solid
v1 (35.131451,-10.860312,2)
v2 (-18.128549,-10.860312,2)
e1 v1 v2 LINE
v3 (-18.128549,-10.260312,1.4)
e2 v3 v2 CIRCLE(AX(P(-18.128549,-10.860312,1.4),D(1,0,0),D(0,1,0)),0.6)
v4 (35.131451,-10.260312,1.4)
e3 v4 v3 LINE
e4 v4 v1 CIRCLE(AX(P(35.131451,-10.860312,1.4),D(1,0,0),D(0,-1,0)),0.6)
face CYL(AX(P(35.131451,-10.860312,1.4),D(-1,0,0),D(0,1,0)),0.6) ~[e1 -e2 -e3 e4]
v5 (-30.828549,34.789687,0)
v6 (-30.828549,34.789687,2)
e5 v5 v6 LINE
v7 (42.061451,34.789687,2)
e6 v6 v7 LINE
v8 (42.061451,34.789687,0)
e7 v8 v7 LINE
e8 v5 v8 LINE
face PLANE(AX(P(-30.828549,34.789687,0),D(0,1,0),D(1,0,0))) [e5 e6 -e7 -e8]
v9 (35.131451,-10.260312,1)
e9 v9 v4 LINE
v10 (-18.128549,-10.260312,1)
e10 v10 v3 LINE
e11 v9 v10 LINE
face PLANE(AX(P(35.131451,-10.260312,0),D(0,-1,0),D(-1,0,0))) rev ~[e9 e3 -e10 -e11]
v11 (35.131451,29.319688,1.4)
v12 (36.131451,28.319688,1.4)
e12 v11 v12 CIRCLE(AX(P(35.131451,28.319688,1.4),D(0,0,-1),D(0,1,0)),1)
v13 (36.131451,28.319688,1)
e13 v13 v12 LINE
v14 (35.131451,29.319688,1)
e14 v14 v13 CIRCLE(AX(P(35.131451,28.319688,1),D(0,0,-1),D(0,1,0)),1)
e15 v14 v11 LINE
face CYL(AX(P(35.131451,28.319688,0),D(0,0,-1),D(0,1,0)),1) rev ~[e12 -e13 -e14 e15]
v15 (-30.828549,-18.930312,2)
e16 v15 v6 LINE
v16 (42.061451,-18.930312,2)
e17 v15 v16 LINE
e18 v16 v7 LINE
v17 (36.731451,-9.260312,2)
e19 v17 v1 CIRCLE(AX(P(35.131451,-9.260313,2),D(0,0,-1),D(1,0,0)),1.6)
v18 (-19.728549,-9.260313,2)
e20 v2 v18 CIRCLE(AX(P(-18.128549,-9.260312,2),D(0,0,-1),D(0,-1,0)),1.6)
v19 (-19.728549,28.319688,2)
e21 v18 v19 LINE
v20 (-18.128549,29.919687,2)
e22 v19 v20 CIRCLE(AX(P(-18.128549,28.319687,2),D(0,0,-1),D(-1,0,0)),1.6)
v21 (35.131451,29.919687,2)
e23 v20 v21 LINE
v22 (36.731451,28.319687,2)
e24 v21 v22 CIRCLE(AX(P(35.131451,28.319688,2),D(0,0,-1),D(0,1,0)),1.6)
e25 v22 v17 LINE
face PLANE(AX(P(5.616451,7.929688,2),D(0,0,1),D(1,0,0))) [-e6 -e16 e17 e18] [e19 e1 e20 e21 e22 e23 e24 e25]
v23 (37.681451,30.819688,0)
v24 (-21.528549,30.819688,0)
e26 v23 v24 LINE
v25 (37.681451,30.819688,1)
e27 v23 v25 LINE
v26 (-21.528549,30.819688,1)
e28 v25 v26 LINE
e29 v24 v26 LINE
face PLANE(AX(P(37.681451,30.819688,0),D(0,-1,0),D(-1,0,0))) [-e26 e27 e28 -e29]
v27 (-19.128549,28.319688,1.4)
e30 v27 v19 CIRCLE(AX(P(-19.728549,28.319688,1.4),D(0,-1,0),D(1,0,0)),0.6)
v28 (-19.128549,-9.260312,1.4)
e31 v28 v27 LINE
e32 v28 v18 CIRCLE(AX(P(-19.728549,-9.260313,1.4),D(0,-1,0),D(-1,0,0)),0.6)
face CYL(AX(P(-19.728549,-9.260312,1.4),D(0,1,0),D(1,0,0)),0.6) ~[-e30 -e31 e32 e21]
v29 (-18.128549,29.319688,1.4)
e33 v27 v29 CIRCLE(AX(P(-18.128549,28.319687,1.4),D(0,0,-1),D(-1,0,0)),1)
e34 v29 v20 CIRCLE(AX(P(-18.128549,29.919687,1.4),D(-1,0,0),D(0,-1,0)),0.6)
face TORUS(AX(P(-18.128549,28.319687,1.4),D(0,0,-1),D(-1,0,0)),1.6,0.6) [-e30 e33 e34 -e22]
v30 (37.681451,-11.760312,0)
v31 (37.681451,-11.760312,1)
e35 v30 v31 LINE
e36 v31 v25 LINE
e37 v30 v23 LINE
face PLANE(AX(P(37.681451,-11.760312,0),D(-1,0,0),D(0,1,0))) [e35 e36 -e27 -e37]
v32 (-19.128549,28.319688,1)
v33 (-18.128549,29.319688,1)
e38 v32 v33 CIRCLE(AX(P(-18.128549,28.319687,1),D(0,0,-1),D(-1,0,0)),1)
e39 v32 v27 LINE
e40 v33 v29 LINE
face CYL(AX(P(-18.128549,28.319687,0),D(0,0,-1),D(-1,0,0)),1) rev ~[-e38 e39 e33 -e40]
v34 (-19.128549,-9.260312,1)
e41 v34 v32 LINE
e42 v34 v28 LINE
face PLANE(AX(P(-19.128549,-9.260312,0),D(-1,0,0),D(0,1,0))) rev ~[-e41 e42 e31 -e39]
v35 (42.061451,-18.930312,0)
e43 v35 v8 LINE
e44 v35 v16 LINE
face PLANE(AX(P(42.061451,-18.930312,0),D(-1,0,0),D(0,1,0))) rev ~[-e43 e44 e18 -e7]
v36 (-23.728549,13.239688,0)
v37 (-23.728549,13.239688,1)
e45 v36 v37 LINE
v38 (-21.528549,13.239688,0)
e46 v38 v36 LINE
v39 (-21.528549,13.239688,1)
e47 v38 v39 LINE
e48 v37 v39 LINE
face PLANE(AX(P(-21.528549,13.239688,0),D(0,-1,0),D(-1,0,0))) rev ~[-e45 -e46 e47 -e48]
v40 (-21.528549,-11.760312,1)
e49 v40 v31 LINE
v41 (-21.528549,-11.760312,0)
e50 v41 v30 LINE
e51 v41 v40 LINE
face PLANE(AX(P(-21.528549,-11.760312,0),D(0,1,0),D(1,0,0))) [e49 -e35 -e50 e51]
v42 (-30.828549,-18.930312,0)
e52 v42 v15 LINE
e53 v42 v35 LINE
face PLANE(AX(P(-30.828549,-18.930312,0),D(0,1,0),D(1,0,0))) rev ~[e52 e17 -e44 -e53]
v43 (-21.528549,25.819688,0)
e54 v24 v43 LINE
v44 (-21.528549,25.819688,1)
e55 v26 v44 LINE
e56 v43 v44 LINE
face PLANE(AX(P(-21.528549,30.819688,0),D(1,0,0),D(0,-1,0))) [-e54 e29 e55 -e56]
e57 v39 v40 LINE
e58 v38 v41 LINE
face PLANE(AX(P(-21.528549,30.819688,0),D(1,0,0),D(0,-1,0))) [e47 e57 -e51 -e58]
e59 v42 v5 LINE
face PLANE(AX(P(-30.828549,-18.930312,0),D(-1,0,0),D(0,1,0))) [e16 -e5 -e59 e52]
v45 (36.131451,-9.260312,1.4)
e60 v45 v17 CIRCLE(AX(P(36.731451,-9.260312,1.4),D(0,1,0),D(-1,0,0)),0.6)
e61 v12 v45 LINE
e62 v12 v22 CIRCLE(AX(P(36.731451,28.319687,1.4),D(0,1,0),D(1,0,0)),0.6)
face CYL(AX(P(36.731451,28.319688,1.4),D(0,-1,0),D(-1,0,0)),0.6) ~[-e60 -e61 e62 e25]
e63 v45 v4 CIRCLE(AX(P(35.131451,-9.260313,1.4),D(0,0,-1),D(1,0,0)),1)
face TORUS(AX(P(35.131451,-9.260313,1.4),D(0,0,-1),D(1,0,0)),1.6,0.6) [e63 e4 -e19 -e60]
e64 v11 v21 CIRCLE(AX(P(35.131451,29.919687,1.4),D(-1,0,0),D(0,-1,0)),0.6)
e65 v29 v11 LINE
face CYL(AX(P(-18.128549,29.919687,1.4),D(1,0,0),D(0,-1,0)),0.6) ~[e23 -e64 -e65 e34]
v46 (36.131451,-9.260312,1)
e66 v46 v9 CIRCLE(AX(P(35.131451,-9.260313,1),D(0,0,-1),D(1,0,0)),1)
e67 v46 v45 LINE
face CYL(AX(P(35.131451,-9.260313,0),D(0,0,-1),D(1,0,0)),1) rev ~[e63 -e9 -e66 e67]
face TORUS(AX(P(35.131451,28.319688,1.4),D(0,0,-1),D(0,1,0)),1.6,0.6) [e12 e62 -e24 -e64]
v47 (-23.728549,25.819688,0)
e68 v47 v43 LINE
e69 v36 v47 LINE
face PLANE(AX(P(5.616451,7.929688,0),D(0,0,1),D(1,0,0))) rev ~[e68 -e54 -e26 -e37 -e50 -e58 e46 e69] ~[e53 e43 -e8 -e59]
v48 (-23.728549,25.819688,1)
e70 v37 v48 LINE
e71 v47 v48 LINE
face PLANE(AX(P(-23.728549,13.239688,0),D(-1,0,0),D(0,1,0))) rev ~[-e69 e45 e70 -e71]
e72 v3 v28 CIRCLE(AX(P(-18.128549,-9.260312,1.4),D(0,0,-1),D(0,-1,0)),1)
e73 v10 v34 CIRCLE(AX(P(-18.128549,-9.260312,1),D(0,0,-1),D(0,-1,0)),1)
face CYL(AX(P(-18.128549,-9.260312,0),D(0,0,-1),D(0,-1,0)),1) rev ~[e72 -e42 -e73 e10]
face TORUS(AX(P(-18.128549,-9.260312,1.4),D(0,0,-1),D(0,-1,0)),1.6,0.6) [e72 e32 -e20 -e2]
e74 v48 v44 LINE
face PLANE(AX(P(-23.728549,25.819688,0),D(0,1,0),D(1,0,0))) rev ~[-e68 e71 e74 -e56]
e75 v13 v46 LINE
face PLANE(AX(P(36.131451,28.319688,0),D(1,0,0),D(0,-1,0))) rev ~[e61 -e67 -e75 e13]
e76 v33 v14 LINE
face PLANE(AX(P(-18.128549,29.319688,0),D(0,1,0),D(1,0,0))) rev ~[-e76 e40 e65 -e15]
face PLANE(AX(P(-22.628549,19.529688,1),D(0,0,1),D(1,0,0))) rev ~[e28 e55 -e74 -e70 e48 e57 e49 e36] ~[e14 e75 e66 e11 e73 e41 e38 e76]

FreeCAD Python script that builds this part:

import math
import FreeCAD as App
import Part
import Sketcher

V = App.Vector


def edges_at(feature, points):
    """Names of the edges that pass closest to the given points."""
    edges = feature.Shape.Edges
    near = lambda p: min(range(len(edges)), key=lambda i: edges[i].distToShape(Part.Vertex(*p))[0])
    return sorted({f"Edge{near(p) + 1}" for p in points})


def add_polygon(sketch, points):
    """Adds a closed chain of lines whose ends are joined by coincident constraints."""
    first, n = sketch.GeometryCount, len(points)
    for a, b in zip(points, points[1:] + points[:1]):
        sketch.addGeometry(Part.LineSegment(App.Vector(*a, 0), App.Vector(*b, 0)), False)
    for i in range(n):
        sketch.addConstraint(Sketcher.Constraint("Coincident", first + i, 2, first + (i + 1) % n, 1))

doc = App.newDocument("Part")
params = doc.addObject("Spreadsheet::Sheet", "Params")
for row, (alias, value) in enumerate([
    ("sketch1_radius", "1 mm"),
    ("sketch1_width", "2.2 mm"),
    ("sketch1_width2", "72.89 mm"),
    ("sketch1_width3", "53.26 mm"),
    ("sketch1_height", "53.72 mm"),
    ("pad1_length", "2 mm"),
    ("sketch2_radius", "1 mm"),
    ("sketch2_width", "59.21 mm"),
    ("sketch2_width2", "53.26 mm"),
    ("sketch2_height", "42.58 mm"),
    ("sketch2_height2", "37.58 mm"),
    ("pocket1_length", "1 mm"),
    ("sketch3_width", "2.2 mm"),
    ("sketch3_height", "12.58 mm"),
    ("pad2_length", "1 mm"),
    ("fillet_radius", "0.6 mm"),
], start=1):
    params.set(f"A{row}", alias)
    params.set(f"B{row}", "=" + value)
    params.setAlias(f"B{row}", alias)

body = doc.addObject("PartDesign::Body", "Body")

sketch1 = body.newObject("Sketcher::SketchObject", "Sketch")
sketch1.AttachmentSupport = (doc.getObject("XY_Plane"), [""])
sketch1.MapMode = "FlatFace"
add_polygon(sketch1, [(-30.828549, 34.789687), (-30.828549, -18.930312), (42.061451, -18.930312), (42.061451, 34.789687)])
add_polygon(sketch1, [(-23.728549, 25.819688), (-21.528549, 25.819688), (-21.528549, 13.239688), (-23.728549, 13.239688)])
sketch1.addGeometry(Part.LineSegment(V(-19.128549, -9.260312, 0), V(-19.128549, 28.319688, 0)), False)
sketch1.addGeometry(Part.ArcOfCircle(Part.Circle(V(-18.128549, 28.319688, 0), V(0, 0, 1), 1), math.radians(90), math.radians(180)), False)
sketch1.addGeometry(Part.LineSegment(V(-18.128549, 29.319688, 0), V(35.131451, 29.319688, 0)), False)
sketch1.addGeometry(Part.ArcOfCircle(Part.Circle(V(35.131451, 28.319688, 0), V(0, 0, 1), 1), math.radians(0), math.radians(90)), False)
sketch1.addGeometry(Part.LineSegment(V(36.131451, 28.319688, 0), V(36.131451, -9.260312, 0)), False)
sketch1.addGeometry(Part.ArcOfCircle(Part.Circle(V(35.131451, -9.260312, 0), V(0, 0, 1), 1), math.radians(-90), math.radians(0)), False)
sketch1.addGeometry(Part.LineSegment(V(35.131451, -10.260312, 0), V(-18.128549, -10.260312, 0)), False)
sketch1.addGeometry(Part.ArcOfCircle(Part.Circle(V(-18.128549, -9.260312, 0), V(0, 0, 1), 1), math.radians(180), math.radians(270)), False)
sketch1.addConstraint(Sketcher.Constraint("Tangent", 8, 2, 9, 2))
sketch1.addConstraint(Sketcher.Constraint("Tangent", 9, 1, 10, 1))
sketch1.addConstraint(Sketcher.Constraint("Tangent", 10, 2, 11, 2))
sketch1.addConstraint(Sketcher.Constraint("Tangent", 11, 1, 12, 1))
sketch1.addConstraint(Sketcher.Constraint("Tangent", 12, 2, 13, 2))
sketch1.addConstraint(Sketcher.Constraint("Tangent", 13, 1, 14, 1))
sketch1.addConstraint(Sketcher.Constraint("Tangent", 14, 2, 15, 2))
sketch1.addConstraint(Sketcher.Constraint("Tangent", 15, 1, 8, 1))
sketch1.addConstraint(Sketcher.Constraint("Vertical", 0))
sketch1.addConstraint(Sketcher.Constraint("Horizontal", 1))
sketch1.addConstraint(Sketcher.Constraint("Vertical", 2))
sketch1.addConstraint(Sketcher.Constraint("Horizontal", 3))
sketch1.addConstraint(Sketcher.Constraint("Horizontal", 4))
sketch1.addConstraint(Sketcher.Constraint("Vertical", 5))
sketch1.addConstraint(Sketcher.Constraint("Horizontal", 6))
sketch1.addConstraint(Sketcher.Constraint("Vertical", 7))
sketch1.addConstraint(Sketcher.Constraint("Vertical", 8))
sketch1.addConstraint(Sketcher.Constraint("Horizontal", 10))
sketch1.addConstraint(Sketcher.Constraint("Vertical", 12))
sketch1.addConstraint(Sketcher.Constraint("Horizontal", 14))
sketch1.addConstraint(Sketcher.Constraint("Equal", 9, 11))
sketch1.addConstraint(Sketcher.Constraint("Equal", 11, 13))
sketch1.addConstraint(Sketcher.Constraint("Equal", 13, 15))
sketch1.addConstraint(Sketcher.Constraint("Radius", 9, 1.0))
sketch1.addConstraint(Sketcher.Constraint("DistanceX", 4, 1, 4, 2, 2.2))
sketch1.addConstraint(Sketcher.Constraint("DistanceX", 1, 1, 1, 2, 72.89))
sketch1.addConstraint(Sketcher.Constraint("DistanceX", 10, 1, 10, 2, 53.26))
sketch1.addConstraint(Sketcher.Constraint("DistanceY", 0, 2, 0, 1, 53.72))
sketch1.addConstraint(Sketcher.Constraint("DistanceY", 5, 2, 5, 1, 12.58))
sketch1.addConstraint(Sketcher.Constraint("DistanceY", 8, 1, 8, 2, 37.58))
sketch1.addConstraint(Sketcher.Constraint("DistanceX", 0, 2, 15, 3, 12.7))
sketch1.addConstraint(Sketcher.Constraint("DistanceX", 4, 2, 9, 3, 3.4))
sketch1.addConstraint(Sketcher.Constraint("DistanceY", 4, 2, 9, 3, 2.5))
sketch1.addConstraint(Sketcher.Constraint("DistanceY", 0, 2, 15, 3, 9.67))
sketch1.addConstraint(Sketcher.Constraint("DistanceX", 9, 3, -1, 1, 18.128549))
sketch1.addConstraint(Sketcher.Constraint("DistanceY", -1, 1, 9, 3, 28.319688))
sketch1.setExpression("Constraints[31]", "Params.sketch1_radius")
sketch1.setExpression("Constraints[32]", "Params.sketch1_width")
sketch1.setExpression("Constraints[33]", "Params.sketch1_width2")
sketch1.setExpression("Constraints[34]", "Params.sketch1_width3")
sketch1.setExpression("Constraints[35]", "Params.sketch1_height")
pad1 = body.newObject("PartDesign::Pad", "Pad")
pad1.Profile = sketch1
pad1.setExpression("Length", "Params.pad1_length")

sketch2 = body.newObject("Sketcher::SketchObject", "Sketch001")
sketch2.AttachmentSupport = (doc.getObject("XY_Plane"), [""])
sketch2.MapMode = "FlatFace"
add_polygon(sketch2, [(37.681451, -11.760312), (37.681451, 30.819688), (-21.528549, 30.819688), (-21.528549, -11.760312)])
sketch2.addGeometry(Part.LineSegment(V(-19.128549, -9.260312, 0), V(-19.128549, 28.319688, 0)), False)
sketch2.addGeometry(Part.ArcOfCircle(Part.Circle(V(-18.128549, 28.319688, 0), V(0, 0, 1), 1), math.radians(90), math.radians(180)), False)
sketch2.addGeometry(Part.LineSegment(V(-18.128549, 29.319688, 0), V(35.131451, 29.319688, 0)), False)
sketch2.addGeometry(Part.ArcOfCircle(Part.Circle(V(35.131451, 28.319688, 0), V(0, 0, 1), 1), math.radians(0), math.radians(90)), False)
sketch2.addGeometry(Part.LineSegment(V(36.131451, 28.319688, 0), V(36.131451, -9.260312, 0)), False)
sketch2.addGeometry(Part.ArcOfCircle(Part.Circle(V(35.131451, -9.260312, 0), V(0, 0, 1), 1), math.radians(-90), math.radians(0)), False)
sketch2.addGeometry(Part.LineSegment(V(35.131451, -10.260312, 0), V(-18.128549, -10.260312, 0)), False)
sketch2.addGeometry(Part.ArcOfCircle(Part.Circle(V(-18.128549, -9.260312, 0), V(0, 0, 1), 1), math.radians(180), math.radians(270)), False)
sketch2.addConstraint(Sketcher.Constraint("Tangent", 4, 2, 5, 2))
sketch2.addConstraint(Sketcher.Constraint("Tangent", 5, 1, 6, 1))
sketch2.addConstraint(Sketcher.Constraint("Tangent", 6, 2, 7, 2))
sketch2.addConstraint(Sketcher.Constraint("Tangent", 7, 1, 8, 1))
sketch2.addConstraint(Sketcher.Constraint("Tangent", 8, 2, 9, 2))
sketch2.addConstraint(Sketcher.Constraint("Tangent", 9, 1, 10, 1))
sketch2.addConstraint(Sketcher.Constraint("Tangent", 10, 2, 11, 2))
sketch2.addConstraint(Sketcher.Constraint("Tangent", 11, 1, 4, 1))
sketch2.addConstraint(Sketcher.Constraint("Vertical", 0))
sketch2.addConstraint(Sketcher.Constraint("Horizontal", 1))
sketch2.addConstraint(Sketcher.Constraint("Vertical", 2))
sketch2.addConstraint(Sketcher.Constraint("Horizontal", 3))
sketch2.addConstraint(Sketcher.Constraint("Vertical", 4))
sketch2.addConstraint(Sketcher.Constraint("Horizontal", 6))
sketch2.addConstraint(Sketcher.Constraint("Vertical", 8))
sketch2.addConstraint(Sketcher.Constraint("Horizontal", 10))
sketch2.addConstraint(Sketcher.Constraint("Equal", 5, 7))
sketch2.addConstraint(Sketcher.Constraint("Equal", 7, 9))
sketch2.addConstraint(Sketcher.Constraint("Equal", 9, 11))
sketch2.addConstraint(Sketcher.Constraint("Radius", 5, 1.0))
sketch2.addConstraint(Sketcher.Constraint("DistanceX", 1, 2, 1, 1, 59.21))
sketch2.addConstraint(Sketcher.Constraint("DistanceX", 6, 1, 6, 2, 53.26))
sketch2.addConstraint(Sketcher.Constraint("DistanceY", 0, 1, 0, 2, 42.58))
sketch2.addConstraint(Sketcher.Constraint("DistanceY", 4, 1, 4, 2, 37.58))
sketch2.addConstraint(Sketcher.Constraint("DistanceY", 7, 3, 0, 2, 2.5))
sketch2.addConstraint(Sketcher.Constraint("DistanceX", 1, 2, 5, 3, 3.4))
sketch2.addConstraint(Sketcher.Constraint("DistanceX", 5, 3, -1, 1, 18.128549))
sketch2.addConstraint(Sketcher.Constraint("DistanceY", -1, 1, 5, 3, 28.319688))
sketch2.setExpression("Constraints[23]", "Params.sketch2_radius")
sketch2.setExpression("Constraints[24]", "Params.sketch2_width")
sketch2.setExpression("Constraints[25]", "Params.sketch2_width2")
sketch2.setExpression("Constraints[26]", "Params.sketch2_height")
sketch2.setExpression("Constraints[27]", "Params.sketch2_height2")
pocket1 = body.newObject("PartDesign::Pocket", "Pocket")
pocket1.Profile = sketch2
pocket1.setExpression("Length", "Params.pocket1_length")
pocket1.Reversed = True

sketch3 = body.newObject("Sketcher::SketchObject", "Sketch002")
sketch3.AttachmentSupport = (doc.getObject("XY_Plane"), [""])
sketch3.MapMode = "FlatFace"
sketch3.AttachmentOffset = App.Placement(V(0, 0, 1), App.Rotation())
add_polygon(sketch3, [(-23.728549, 25.819688), (-23.728549, 13.239688), (-21.528549, 13.239688), (-21.528549, 25.819688)])
sketch3.addConstraint(Sketcher.Constraint("Vertical", 0))
sketch3.addConstraint(Sketcher.Constraint("Horizontal", 1))
sketch3.addConstraint(Sketcher.Constraint("Vertical", 2))
sketch3.addConstraint(Sketcher.Constraint("Horizontal", 3))
sketch3.addConstraint(Sketcher.Constraint("DistanceX", 1, 1, 1, 2, 2.2))
sketch3.addConstraint(Sketcher.Constraint("DistanceY", 0, 2, 0, 1, 12.58))
sketch3.addConstraint(Sketcher.Constraint("DistanceX", 0, 2, -1, 1, 23.728549))
sketch3.addConstraint(Sketcher.Constraint("DistanceY", -1, 1, 0, 2, 13.239688))
sketch3.setExpression("Constraints[8]", "Params.sketch3_width")
sketch3.setExpression("Constraints[9]", "Params.sketch3_height")
pad2 = body.newObject("PartDesign::Pad", "Pad001")
pad2.Profile = sketch3
pad2.setExpression("Length", "Params.pad2_length")
doc.recompute()

fillet = body.newObject("PartDesign::Fillet", "Fillet")
fillet.Base = (pad2, edges_at(pad2, [
    (8.501, 29.32, 2),
    (-19.129, 9.53, 2),
    (8.501, -10.26, 2),
    (36.131, 9.53, 2),
]))
fillet.setExpression("Radius", "Params.fillet_radius")

doc.recompute()
